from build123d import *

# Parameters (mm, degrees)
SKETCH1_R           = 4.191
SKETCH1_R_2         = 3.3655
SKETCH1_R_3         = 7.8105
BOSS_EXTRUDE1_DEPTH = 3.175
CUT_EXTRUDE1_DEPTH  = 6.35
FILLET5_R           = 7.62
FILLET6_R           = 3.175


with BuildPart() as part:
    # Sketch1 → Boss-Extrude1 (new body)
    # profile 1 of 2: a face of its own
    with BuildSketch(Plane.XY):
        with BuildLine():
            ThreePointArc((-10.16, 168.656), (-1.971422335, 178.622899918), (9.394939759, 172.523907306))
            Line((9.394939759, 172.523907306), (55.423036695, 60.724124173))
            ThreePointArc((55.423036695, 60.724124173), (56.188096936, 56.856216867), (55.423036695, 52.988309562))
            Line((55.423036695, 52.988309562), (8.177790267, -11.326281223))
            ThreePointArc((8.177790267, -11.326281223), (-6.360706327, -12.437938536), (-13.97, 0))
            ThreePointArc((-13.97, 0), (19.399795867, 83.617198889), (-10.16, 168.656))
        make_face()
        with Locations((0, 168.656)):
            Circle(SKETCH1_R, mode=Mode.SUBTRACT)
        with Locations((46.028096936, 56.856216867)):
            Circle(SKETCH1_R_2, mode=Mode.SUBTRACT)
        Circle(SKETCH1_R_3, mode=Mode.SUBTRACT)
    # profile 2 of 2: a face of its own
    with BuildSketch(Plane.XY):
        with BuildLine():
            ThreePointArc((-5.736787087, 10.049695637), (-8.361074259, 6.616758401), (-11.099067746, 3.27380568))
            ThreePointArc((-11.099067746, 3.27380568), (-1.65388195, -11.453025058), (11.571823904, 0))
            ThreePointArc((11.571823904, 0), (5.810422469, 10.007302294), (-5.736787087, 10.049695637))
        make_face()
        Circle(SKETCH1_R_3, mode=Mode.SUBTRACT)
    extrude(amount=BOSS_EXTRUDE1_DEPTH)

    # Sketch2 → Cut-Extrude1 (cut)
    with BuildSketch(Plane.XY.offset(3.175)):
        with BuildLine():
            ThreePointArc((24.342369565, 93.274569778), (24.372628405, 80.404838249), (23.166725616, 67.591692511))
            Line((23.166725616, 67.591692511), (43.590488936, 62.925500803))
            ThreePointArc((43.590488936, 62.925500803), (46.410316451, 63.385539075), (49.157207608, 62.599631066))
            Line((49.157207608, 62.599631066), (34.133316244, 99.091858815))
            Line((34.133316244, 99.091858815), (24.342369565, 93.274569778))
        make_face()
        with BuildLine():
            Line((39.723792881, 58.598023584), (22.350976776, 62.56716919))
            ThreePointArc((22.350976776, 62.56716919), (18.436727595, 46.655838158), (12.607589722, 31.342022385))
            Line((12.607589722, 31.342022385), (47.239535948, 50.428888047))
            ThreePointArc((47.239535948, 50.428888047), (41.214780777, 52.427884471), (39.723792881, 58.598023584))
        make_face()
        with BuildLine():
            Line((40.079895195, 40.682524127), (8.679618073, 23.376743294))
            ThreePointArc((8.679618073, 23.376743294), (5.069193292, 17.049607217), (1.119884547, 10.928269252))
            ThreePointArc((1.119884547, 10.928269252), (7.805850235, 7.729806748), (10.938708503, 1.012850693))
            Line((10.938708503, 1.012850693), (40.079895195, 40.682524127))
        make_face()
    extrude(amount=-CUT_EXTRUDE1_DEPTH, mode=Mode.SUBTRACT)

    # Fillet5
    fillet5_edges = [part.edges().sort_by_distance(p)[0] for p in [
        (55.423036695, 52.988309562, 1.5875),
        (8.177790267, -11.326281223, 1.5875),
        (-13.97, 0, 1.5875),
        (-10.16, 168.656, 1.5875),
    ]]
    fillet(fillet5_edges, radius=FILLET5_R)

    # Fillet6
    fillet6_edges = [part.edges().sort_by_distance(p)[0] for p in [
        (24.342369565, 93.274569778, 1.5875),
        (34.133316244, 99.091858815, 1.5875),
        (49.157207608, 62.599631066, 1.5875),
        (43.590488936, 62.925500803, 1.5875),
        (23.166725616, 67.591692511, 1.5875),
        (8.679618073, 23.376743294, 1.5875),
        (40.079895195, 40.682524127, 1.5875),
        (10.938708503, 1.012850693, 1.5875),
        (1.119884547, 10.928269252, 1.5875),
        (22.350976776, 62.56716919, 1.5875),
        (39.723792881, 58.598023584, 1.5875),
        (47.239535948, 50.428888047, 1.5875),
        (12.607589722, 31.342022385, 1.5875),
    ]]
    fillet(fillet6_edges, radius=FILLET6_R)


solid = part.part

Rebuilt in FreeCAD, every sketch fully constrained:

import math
import FreeCAD as App
import Part
import Sketcher
from FreeCAD import Vector
Q = App.Units.Quantity


def edges_at(feature, points):
    """Names of the edges that pass closest to the given points."""
    edges = feature.Shape.Edges
    near = lambda p: min(range(len(edges)), key=lambda i: edges[i].distToShape(Part.Vertex(*p))[0])
    return sorted({f"Edge{near(p) + 1}" for p in points})

doc = App.newDocument("Part")
body = doc.addObject("PartDesign::Body", "Body")

sketch1 = body.newObject("Sketcher::SketchObject", "Sketch")
sketch1.AttachmentSupport = (doc.getObject("XY_Plane"), [""])
sketch1.MapMode = "FlatFace"
sketch1.addGeometry(Part.ArcOfCircle(Part.Circle(Vector(-109.335267, 86.52537, 0), Vector(0, 0, 1), 128.767907), math.radians(-36.434485), math.radians(39.629386)), False)
sketch1.addGeometry(Part.ArcOfCircle(Part.Circle(Vector(-109.335268, 86.525371, 0), Vector(0, 0, 1), 128.767908), math.radians(-40.280049), math.radians(-36.434485)), False)
sketch1.addGeometry(Part.ArcOfCircle(Part.Circle(Vector(-109.335267, 86.52537, 0), Vector(0, 0, 1), 128.767907), math.radians(-42.217611), math.radians(-40.280049)), False)
sketch1.addGeometry(Part.ArcOfCircle(Part.Circle(Vector(0, 0, 0), Vector(0, 0, 1), 13.97), math.radians(180), math.radians(305.83)), False)
sketch1.addGeometry(Part.LineSegment(Vector(8.17779, -11.326281, 0), Vector(55.423037, 52.98831, 0)), False)
sketch1.addGeometry(Part.ArcOfCircle(Part.Circle(Vector(46.028097, 56.856217, 0), Vector(0, 0, 1), 10.16), math.radians(-22.37702), math.radians(22.37702)), False)
sketch1.addGeometry(Part.LineSegment(Vector(55.423037, 60.724124, 0), Vector(9.39494, 172.523907, 0)), False)
sketch1.addGeometry(Part.ArcOfCircle(Part.Circle(Vector(0, 168.656, 0), Vector(0, 0, 1), 10.16), math.radians(22.37702), math.radians(180)), False)
sketch1.addGeometry(Part.Circle(Vector(46.028097, 56.856217, 0), Vector(0, 0, 1), 3.3655), False)
sketch1.addGeometry(Part.Circle(Vector(0, 168.656, 0), Vector(0, 0, 1), 4.191), False)
sketch1.addGeometry(Part.Circle(Vector(0, 0, 0), Vector(0, 0, 1), 7.8105), False)
sketch1.addConstraint(Sketcher.Constraint("Tangent", 0, 1, 1, 2))
sketch1.addConstraint(Sketcher.Constraint("Tangent", 1, 1, 2, 2))
sketch1.addConstraint(Sketcher.Constraint("Coincident", 2, 1, 3, 1))
sketch1.addConstraint(Sketcher.Constraint("Coincident", 3, 2, 4, 1))
sketch1.addConstraint(Sketcher.Constraint("Coincident", 4, 2, 5, 1))
sketch1.addConstraint(Sketcher.Constraint("Tangent", 5, 2, 6, 1))
sketch1.addConstraint(Sketcher.Constraint("Tangent", 6, 2, 7, 1))
sketch1.addConstraint(Sketcher.Constraint("Coincident", 7, 2, 0, 2))
sketch1.addConstraint(Sketcher.Constraint("Coincident", 3, 3, -1, 1))
sketch1.addConstraint(Sketcher.Constraint("Coincident", 10, 3, -1, 1))
sketch1.addConstraint(Sketcher.Constraint("Coincident", 2, 3, 0, 3))
sketch1.addConstraint(Sketcher.Constraint("Coincident", 8, 3, 5, 3))
sketch1.addConstraint(Sketcher.Constraint("Coincident", 9, 3, 7, 3))
sketch1.addConstraint(Sketcher.Constraint("Equal", 5, 7))
sketch1.addConstraint(Sketcher.Constraint("PointOnObject", 7, 3, -2))
sketch1.addConstraint(Sketcher.Constraint("PointOnObject", 2, 1, -1))
sketch1.addConstraint(Sketcher.Constraint("Horizontal", 9, 3, 7, 2))
sketch1.addConstraint(Sketcher.Constraint("Vertical", 4, 2, 5, 2))
sketch1.addConstraint(Sketcher.Constraint("Radius", 5, Q("0.4 in")))
sketch1.addConstraint(Sketcher.Constraint("Diameter", 9, Q("0.33 in")))
sketch1.addConstraint(Sketcher.Constraint("Radius", 3, Q("0.55 in")))
sketch1.addConstraint(Sketcher.Constraint("Diameter", 8, Q("0.265 in")))
sketch1.addConstraint(Sketcher.Constraint("Diameter", 10, Q("0.615 in")))
sketch1.addConstraint(Sketcher.Constraint("Distance", 6, Q("4.76 in")))
sketch1.addConstraint(Sketcher.Constraint("DistanceY", -1, 1, 7, 3, Q("6.64 in")))
sketch1.addConstraint(Sketcher.Constraint("Radius", 1, 128.767908))
sketch1.addConstraint(Sketcher.Constraint("DistanceX", -1, 1, 3, 2, 8.17779))
sketch1.addConstraint(Sketcher.Constraint("DistanceY", -1, 1, 4, 2, 52.98831))
sketch1.addConstraint(Sketcher.Constraint("DistanceY", 0, 1, 8, 3, 46.806521))
sketch1.addConstraint(Sketcher.Constraint("DistanceX", 1, 1, 0, 1, 5.362281))
pad1 = body.newObject("PartDesign::Pad", "Pad")
pad1.Profile = sketch1
pad1.Length = Q("0.125 in")

sketch2 = body.newObject("Sketcher::SketchObject", "Sketch001")
sketch2.AttachmentSupport = (doc.getObject("XY_Plane"), [""])
sketch2.MapMode = "FlatFace"
sketch2.AttachmentOffset = App.Placement(Vector(0, 0, 0.125 * 25.4), App.Rotation())
sketch2.addGeometry(Part.ArcOfCircle(Part.Circle(Vector(-109.335267, 86.52537, 0), Vector(0, 0, 1), 133.847907), math.radians(-8.132146), math.radians(2.890331)), False)
sketch2.addGeometry(Part.LineSegment(Vector(23.166726, 67.591693, 0), Vector(43.590489, 62.925501, 0)), False)
sketch2.addGeometry(Part.ArcOfCircle(Part.Circle(Vector(46.028097, 56.856217, 0), Vector(0, 0, 1), 6.5405), math.radians(61.417693), math.radians(111.881887)), False)
sketch2.addGeometry(Part.LineSegment(Vector(49.157208, 62.599631, 0), Vector(34.133316, 99.091859, 0)), False)
sketch2.addGeometry(Part.LineSegment(Vector(34.133316, 99.091859, 0), Vector(24.34237, 93.27457, 0)), False)
sketch2.addGeometry(Part.LineSegment(Vector(39.723793, 58.598024, 0), Vector(22.350977, 62.567169, 0)), False)
sketch2.addGeometry(Part.ArcOfCircle(Part.Circle(Vector(-109.335267, 86.52537, 0), Vector(0, 0, 1), 133.847907), math.radians(-24.348392), math.radians(-10.311268)), False)
sketch2.addGeometry(Part.LineSegment(Vector(12.60759, 31.342022, 0), Vector(47.239536, 50.428888, 0)), False)
sketch2.addGeometry(Part.ArcOfCircle(Part.Circle(Vector(46.028097, 56.856217, 0), Vector(0, 0, 1), 6.5405), math.radians(164.555136), math.radians(280.674027)), False)
sketch2.addGeometry(Part.LineSegment(Vector(40.079895, 40.682524, 0), Vector(8.679618, 23.376743, 0)), False)
sketch2.addGeometry(Part.ArcOfCircle(Part.Circle(Vector(-109.335267, 86.525371, 0), Vector(0, 0, 1), 133.847907), math.radians(-34.388302), math.radians(-28.150806)), False)
sketch2.addGeometry(Part.ArcOfCircle(Part.Circle(Vector(0, 0, 0), Vector(0, 0, 1), 10.9855), math.radians(5.290119), math.radians(84.148986)), False)
sketch2.addGeometry(Part.LineSegment(Vector(10.938709, 1.012851, 0), Vector(40.079895, 40.682524, 0)), False)
sketch2.addConstraint(Sketcher.Constraint("Coincident", 0, 1, 1, 1))
sketch2.addConstraint(Sketcher.Constraint("Coincident", 1, 2, 2, 2))
sketch2.addConstraint(Sketcher.Constraint("Coincident", 2, 1, 3, 1))
sketch2.addConstraint(Sketcher.Constraint("Coincident", 3, 2, 4, 1))
sketch2.addConstraint(Sketcher.Constraint("Coincident", 4, 2, 0, 2))
sketch2.addConstraint(Sketcher.Constraint("Coincident", 5, 2, 6, 2))
sketch2.addConstraint(Sketcher.Constraint("Coincident", 6, 1, 7, 1))
sketch2.addConstraint(Sketcher.Constraint("Coincident", 7, 2, 8, 2))
sketch2.addConstraint(Sketcher.Constraint("Coincident", 8, 1, 5, 1))
sketch2.addConstraint(Sketcher.Constraint("Coincident", 9, 2, 10, 2))
sketch2.addConstraint(Sketcher.Constraint("Coincident", 10, 1, 11, 2))
sketch2.addConstraint(Sketcher.Constraint("Coincident", 11, 1, 12, 1))
sketch2.addConstraint(Sketcher.Constraint("Coincident", 12, 2, 9, 1))
sketch2.addConstraint(Sketcher.Constraint("Coincident", 11, 3, -1, 1))
sketch2.addConstraint(Sketcher.Constraint("Coincident", 6, 3, 0, 3))
sketch2.addConstraint(Sketcher.Constraint("Coincident", 8, 3, 2, 3))
sketch2.addConstraint(Sketcher.Constraint("Coincident", 10, 3, 0, 3))
sketch2.addConstraint(Sketcher.Constraint("Equal", 0, 6))
sketch2.addConstraint(Sketcher.Constraint("Equal", 2, 8))
sketch2.addConstraint(Sketcher.Constraint("Equal", 6, 10))
sketch2.addConstraint(Sketcher.Constraint("Parallel", 1, 5))
sketch2.addConstraint(Sketcher.Constraint("Parallel", 7, 9))
sketch2.addConstraint(Sketcher.Constraint("Radius", 2, Q("0.2575 in")))
sketch2.addConstraint(Sketcher.Constraint("Radius", 11, Q("0.4325 in")))
sketch2.addConstraint(Sketcher.Constraint("Radius", 0, 133.847907))
sketch2.addConstraint(Sketcher.Constraint("DistanceX", 4, 2, 1, 2, Q("0.7578 in")))
sketch2.addConstraint(Sketcher.Constraint("DistanceY", -1, 1, 1, 2, 62.925501))
sketch2.addConstraint(Sketcher.Constraint("DistanceY", 10, 1, 5, 2, 51.6389))
sketch2.addConstraint(Sketcher.Constraint("DistanceX", 12, 2, 2, 3, 5.948202))
sketch2.addConstraint(Sketcher.Constraint("DistanceY", 12, 2, 8, 1, 17.915499))
sketch2.addConstraint(Sketcher.Constraint("Distance", 5, 17.820462))
sketch2.addConstraint(Sketcher.Constraint("Distance", 12, 49.222878))
sketch2.addConstraint(Sketcher.Constraint("DistanceY", -1, 1, 0, 3, 86.52537))
sketch2.addConstraint(Sketcher.Constraint("DistanceX", -1, 1, 1, 2, 43.590489))
sketch2.addConstraint(Sketcher.Constraint("DistanceY", -1, 1, 2, 1, 62.599631))
sketch2.addConstraint(Sketcher.Constraint("DistanceY", -1, 1, 3, 2, 99.091859))
sketch2.addConstraint(Sketcher.Constraint("DistanceY", -1, 1, 4, 2, 93.27457))
sketch2.addConstraint(Sketcher.Constraint("DistanceX", -1, 1, 6, 1, 12.60759))
sketch2.addConstraint(Sketcher.Constraint("DistanceY", -1, 1, 7, 2, 50.428888))
sketch2.addConstraint(Sketcher.Constraint("DistanceX", -1, 1, 9, 2, 8.679618))
sketch2.addConstraint(Sketcher.Constraint("DistanceX", 0, 1, 3, 2, 10.966591))
pocket1 = body.newObject("PartDesign::Pocket", "Pocket")
pocket1.Profile = sketch2
pocket1.Length = Q("0.25 in")
doc.recompute()

fillet = body.newObject("PartDesign::Fillet", "Fillet")
fillet.Base = (pocket1, edges_at(pocket1, [
    (55.423, 52.988, 1.587),
    (8.178, -11.326, 1.587),
    (-13.97, 0, 1.587),
    (-10.16, 168.656, 1.587),
]))
fillet.Radius = Q("0.3 in")
doc.recompute()

fillet2 = body.newObject("PartDesign::Fillet", "Fillet001")
fillet2.Base = (fillet, edges_at(fillet, [
    (24.342, 93.275, 1.587),
    (34.133, 99.092, 1.587),
    (49.157, 62.6, 1.587),
    (43.59, 62.926, 1.587),
    (23.167, 67.592, 1.587),
    (8.68, 23.377, 1.587),
    (40.08, 40.683, 1.587),
    (10.939, 1.013, 1.587),
    (1.12, 10.928, 1.587),
    (22.351, 62.567, 1.587),
    (39.724, 58.598, 1.587),
    (47.24, 50.429, 1.587),
    (12.608, 31.342, 1.587),
]))
fillet2.Radius = Q("0.125 in")

doc.recompute()
